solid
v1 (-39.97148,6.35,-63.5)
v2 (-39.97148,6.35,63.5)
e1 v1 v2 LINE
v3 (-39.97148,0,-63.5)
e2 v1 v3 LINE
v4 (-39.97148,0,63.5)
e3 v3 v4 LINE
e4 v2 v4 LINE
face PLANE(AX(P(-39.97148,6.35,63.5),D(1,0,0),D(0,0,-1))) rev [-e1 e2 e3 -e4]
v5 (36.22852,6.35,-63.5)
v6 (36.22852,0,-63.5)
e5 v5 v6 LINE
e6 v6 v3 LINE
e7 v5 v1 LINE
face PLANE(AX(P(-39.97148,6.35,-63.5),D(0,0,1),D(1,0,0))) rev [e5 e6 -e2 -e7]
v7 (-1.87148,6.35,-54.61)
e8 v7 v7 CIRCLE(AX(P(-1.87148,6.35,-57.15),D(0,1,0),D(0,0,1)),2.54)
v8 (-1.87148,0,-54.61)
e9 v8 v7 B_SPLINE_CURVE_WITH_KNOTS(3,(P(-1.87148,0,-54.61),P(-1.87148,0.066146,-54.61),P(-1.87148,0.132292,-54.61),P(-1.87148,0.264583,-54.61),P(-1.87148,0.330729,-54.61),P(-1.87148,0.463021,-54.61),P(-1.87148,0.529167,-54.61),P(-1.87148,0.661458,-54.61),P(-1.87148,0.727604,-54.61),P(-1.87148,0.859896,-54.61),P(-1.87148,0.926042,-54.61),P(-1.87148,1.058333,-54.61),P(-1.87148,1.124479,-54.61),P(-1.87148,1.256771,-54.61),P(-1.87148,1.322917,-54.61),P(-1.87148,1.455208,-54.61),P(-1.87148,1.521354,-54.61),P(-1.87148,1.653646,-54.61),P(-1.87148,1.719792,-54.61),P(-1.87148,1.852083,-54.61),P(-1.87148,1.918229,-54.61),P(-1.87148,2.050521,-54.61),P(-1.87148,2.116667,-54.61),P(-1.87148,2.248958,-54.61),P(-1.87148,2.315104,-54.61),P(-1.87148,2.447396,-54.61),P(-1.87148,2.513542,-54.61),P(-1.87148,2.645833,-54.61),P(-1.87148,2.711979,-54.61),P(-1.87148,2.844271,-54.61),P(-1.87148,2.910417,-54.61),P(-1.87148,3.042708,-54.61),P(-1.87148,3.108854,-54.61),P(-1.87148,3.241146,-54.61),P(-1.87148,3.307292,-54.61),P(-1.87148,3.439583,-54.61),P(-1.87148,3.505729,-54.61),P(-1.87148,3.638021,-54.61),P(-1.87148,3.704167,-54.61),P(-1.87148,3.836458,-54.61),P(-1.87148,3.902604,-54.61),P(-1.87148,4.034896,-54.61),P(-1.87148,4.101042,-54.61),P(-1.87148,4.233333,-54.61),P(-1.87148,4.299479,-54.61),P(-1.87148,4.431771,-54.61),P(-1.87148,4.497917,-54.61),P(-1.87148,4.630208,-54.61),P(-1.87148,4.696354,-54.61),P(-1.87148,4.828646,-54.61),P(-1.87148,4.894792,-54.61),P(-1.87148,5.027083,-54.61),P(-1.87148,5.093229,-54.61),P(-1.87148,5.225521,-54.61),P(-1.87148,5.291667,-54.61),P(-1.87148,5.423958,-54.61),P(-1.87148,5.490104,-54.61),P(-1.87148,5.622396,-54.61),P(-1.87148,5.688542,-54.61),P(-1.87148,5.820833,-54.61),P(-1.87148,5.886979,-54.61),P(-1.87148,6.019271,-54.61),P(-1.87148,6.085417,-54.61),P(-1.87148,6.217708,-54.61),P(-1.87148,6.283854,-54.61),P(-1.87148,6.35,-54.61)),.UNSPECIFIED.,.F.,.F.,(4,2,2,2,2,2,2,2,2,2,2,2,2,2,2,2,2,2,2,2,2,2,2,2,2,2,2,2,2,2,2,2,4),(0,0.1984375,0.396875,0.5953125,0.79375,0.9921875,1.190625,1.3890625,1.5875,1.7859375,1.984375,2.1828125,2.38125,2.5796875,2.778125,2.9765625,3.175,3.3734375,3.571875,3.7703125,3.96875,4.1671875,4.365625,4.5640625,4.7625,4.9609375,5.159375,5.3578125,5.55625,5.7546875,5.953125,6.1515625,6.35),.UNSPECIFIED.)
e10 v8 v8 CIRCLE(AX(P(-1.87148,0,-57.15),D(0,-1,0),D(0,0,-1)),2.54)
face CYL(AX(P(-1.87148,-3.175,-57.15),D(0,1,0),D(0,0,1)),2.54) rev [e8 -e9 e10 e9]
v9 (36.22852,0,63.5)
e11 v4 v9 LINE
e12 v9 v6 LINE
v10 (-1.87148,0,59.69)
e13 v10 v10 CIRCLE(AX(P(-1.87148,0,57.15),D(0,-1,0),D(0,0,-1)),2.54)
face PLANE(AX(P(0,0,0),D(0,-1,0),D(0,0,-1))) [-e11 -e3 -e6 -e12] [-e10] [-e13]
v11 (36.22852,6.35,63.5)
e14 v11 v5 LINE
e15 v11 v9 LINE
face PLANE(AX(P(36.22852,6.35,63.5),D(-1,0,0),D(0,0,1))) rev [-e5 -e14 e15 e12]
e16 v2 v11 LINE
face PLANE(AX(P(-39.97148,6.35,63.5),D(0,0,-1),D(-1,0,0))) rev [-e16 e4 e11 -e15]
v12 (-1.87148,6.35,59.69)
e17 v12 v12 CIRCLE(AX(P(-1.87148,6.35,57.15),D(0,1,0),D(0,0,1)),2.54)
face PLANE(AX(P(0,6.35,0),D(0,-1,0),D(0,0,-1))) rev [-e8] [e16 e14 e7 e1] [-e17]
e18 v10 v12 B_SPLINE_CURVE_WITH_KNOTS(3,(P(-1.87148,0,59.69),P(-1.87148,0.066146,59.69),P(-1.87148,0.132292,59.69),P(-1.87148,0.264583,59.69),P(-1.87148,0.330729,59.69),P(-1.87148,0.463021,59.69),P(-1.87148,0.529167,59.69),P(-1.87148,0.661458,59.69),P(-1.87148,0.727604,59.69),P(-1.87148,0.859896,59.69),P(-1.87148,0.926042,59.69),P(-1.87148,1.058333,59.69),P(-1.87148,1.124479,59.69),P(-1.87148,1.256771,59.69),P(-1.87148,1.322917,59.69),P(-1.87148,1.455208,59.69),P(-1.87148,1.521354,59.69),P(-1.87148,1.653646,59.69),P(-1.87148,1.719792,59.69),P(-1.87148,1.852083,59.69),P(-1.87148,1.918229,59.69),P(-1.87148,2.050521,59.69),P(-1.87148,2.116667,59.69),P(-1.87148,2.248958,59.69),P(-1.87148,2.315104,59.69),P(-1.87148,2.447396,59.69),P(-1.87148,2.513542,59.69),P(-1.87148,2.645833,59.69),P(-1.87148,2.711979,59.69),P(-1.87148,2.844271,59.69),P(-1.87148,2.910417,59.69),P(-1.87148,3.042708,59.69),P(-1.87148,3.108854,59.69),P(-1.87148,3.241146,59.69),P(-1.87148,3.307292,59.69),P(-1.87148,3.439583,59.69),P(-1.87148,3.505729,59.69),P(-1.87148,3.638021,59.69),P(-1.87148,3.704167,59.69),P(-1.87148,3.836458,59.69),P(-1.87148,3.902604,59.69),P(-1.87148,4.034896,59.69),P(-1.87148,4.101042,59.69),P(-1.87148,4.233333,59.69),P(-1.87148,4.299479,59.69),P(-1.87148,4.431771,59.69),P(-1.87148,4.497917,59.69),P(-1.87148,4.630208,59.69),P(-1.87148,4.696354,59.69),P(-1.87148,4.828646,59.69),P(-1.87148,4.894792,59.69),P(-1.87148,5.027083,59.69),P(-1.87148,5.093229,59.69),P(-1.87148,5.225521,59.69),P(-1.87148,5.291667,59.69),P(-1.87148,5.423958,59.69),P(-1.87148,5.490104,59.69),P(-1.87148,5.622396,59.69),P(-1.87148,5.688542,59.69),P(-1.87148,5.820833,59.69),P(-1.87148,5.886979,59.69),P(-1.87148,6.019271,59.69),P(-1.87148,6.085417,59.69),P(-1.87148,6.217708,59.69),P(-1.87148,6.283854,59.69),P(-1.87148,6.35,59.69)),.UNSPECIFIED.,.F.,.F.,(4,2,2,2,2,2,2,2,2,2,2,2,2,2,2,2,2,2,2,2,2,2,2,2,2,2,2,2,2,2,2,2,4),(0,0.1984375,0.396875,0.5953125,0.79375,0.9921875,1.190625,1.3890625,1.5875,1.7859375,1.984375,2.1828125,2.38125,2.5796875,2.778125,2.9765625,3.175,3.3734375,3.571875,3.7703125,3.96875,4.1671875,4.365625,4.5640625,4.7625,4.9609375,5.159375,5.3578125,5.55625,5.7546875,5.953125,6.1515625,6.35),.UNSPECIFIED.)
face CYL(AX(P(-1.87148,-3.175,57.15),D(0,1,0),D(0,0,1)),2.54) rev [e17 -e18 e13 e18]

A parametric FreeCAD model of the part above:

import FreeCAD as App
import Part
import Sketcher
from FreeCAD import Vector
Q = App.Units.Quantity


def add_polygon(sketch, points):
    """Adds a closed chain of lines whose ends are joined by coincident constraints."""
    first, n = sketch.GeometryCount, len(points)
    for a, b in zip(points, points[1:] + points[:1]):
        sketch.addGeometry(Part.LineSegment(App.Vector(*a, 0), App.Vector(*b, 0)), False)
    for i in range(n):
        sketch.addConstraint(Sketcher.Constraint("Coincident", first + i, 2, first + (i + 1) % n, 1))

doc = App.newDocument("Part")
body = doc.addObject("PartDesign::Body", "Body")

sketch1 = doc.addObject("Sketcher::SketchObject", "Sketch")
body.addObject(sketch1)
sketch1.AttachmentSupport = (doc.XZ_Plane, [""])
sketch1.MapMode = "FlatFace"
add_polygon(sketch1, [(-39.97148, -63.5), (-39.97148, 63.5), (36.22852, 63.5), (36.22852, -63.5)])
sketch1.addConstraint([
    Sketcher.Constraint("Vertical", 0),
    Sketcher.Constraint("Horizontal", 1),
    Sketcher.Constraint("Vertical", 2),
    Sketcher.Constraint("Horizontal", 3),
    Sketcher.Constraint("DistanceX", 1, 1, 1, 2, Q("3 in")),
    Sketcher.Constraint("DistanceY", 0, 1, 0, 2, Q("5 in")),
    Sketcher.Constraint("DistanceY", -1, 1, 0, 2, Q("2.5 in")),
    Sketcher.Constraint("DistanceX", 0, 2, -1, 1, Q("39.97148 mm")),
])
pad1 = doc.addObject("PartDesign::Pad", "Pad")
body.addObject(pad1)
pad1.Profile = sketch1
pad1.Length = Q("0.25 in")
pad1.Reversed = True

sketch2 = doc.addObject("Sketcher::SketchObject", "Sketch001")
body.addObject(sketch2)
sketch2.AttachmentSupport = (doc.XZ_Plane, [""])
sketch2.MapMode = "FlatFace"
sketch2.AttachmentOffset = App.Placement(Vector(0, 0, -0.25 * 25.4), App.Rotation())
sketch2.addGeometry([
    Part.Circle(Vector(-1.87148, -57.15, 0), Vector(0, 0, 1), 2.54),
    Part.Circle(Vector(-1.87148, 57.15, 0), Vector(0, 0, 1), 2.54),
], False)
sketch2.addConstraint([
    Sketcher.Constraint("Equal", 0, 1),
    Sketcher.Constraint("Symmetric", 0, 3, 1, 3, -1),
    Sketcher.Constraint("Diameter", 0, Q("0.2 in")),
    Sketcher.Constraint("DistanceY", 0, 3, 1, 3, Q("4.5 in")),
    Sketcher.Constraint("DistanceX", 0, 3, -1, 1, Q("1.87148 mm")),
])
pocket1 = doc.addObject("PartDesign::Pocket", "Pocket")
body.addObject(pocket1)
pocket1.Profile = sketch2
pocket1.Length = Q("0.375 in")
pocket1.Reversed = True

doc.recompute()
